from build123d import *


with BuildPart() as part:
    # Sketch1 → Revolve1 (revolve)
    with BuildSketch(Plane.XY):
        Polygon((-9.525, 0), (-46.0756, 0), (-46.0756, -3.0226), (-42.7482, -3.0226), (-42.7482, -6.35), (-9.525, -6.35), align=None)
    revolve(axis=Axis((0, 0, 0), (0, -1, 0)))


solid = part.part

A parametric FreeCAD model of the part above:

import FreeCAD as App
import Part
import Sketcher
from FreeCAD import Vector
Q = App.Units.Quantity

doc = App.newDocument("Part")
body = doc.addObject("PartDesign::Body", "Body")

# Sketch on XY plane
sketch1 = body.newObject("Sketcher::SketchObject", "Sketch")
sketch1.AttachmentSupport = (doc.getObject("XY_Plane"), [""])
sketch1.MapMode = "FlatFace"
sketch1.addGeometry(Part.LineSegment(Vector(-9.525, 0, 0), Vector(-46.0756, 0, 0)), False)
sketch1.addGeometry(Part.LineSegment(Vector(-46.0756, 0, 0), Vector(-46.0756, -3.0226, 0)), False)
sketch1.addGeometry(Part.LineSegment(Vector(-46.0756, -3.0226, 0), Vector(-42.7482, -3.0226, 0)), False)
sketch1.addGeometry(Part.LineSegment(Vector(-42.7482, -3.0226, 0), Vector(-42.7482, -6.35, 0)), False)
sketch1.addGeometry(Part.LineSegment(Vector(-42.7482, -6.35, 0), Vector(-9.525, -6.35, 0)), False)
sketch1.addGeometry(Part.LineSegment(Vector(-9.525, -6.35, 0), Vector(-9.525, 0, 0)), False)
sketch1.addConstraint(Sketcher.Constraint("Coincident", 0, 2, 1, 1))
sketch1.addConstraint(Sketcher.Constraint("Coincident", 1, 2, 2, 1))
sketch1.addConstraint(Sketcher.Constraint("Coincident", 2, 2, 3, 1))
sketch1.addConstraint(Sketcher.Constraint("Coincident", 3, 2, 4, 1))
sketch1.addConstraint(Sketcher.Constraint("Coincident", 4, 2, 5, 1))
sketch1.addConstraint(Sketcher.Constraint("Coincident", 5, 2, 0, 1))
sketch1.addConstraint(Sketcher.Constraint("Horizontal", 0))
sketch1.addConstraint(Sketcher.Constraint("Vertical", 1))
sketch1.addConstraint(Sketcher.Constraint("Horizontal", 2))
sketch1.addConstraint(Sketcher.Constraint("Vertical", 3))
sketch1.addConstraint(Sketcher.Constraint("Horizontal", 4))
sketch1.addConstraint(Sketcher.Constraint("Vertical", 5))
sketch1.addConstraint(Sketcher.Constraint("PointOnObject", 0, 2, -1))
sketch1.addConstraint(Sketcher.Constraint("Equal", 2, 3))
sketch1.addConstraint(Sketcher.Constraint("DistanceY", 5, 1, 5, 2, Q("0.25 in")))
sketch1.addConstraint(Sketcher.Constraint("DistanceX", 0, 2, 0, 1, Q("1.439 in")))
sketch1.addConstraint(Sketcher.Constraint("DistanceX", 2, 1, 2, 2, Q("0.131 in")))
sketch1.addConstraint(Sketcher.Constraint("DistanceX", 0, 2, -1, 1, Q("1.814 in")))
revolution = body.newObject("PartDesign::Revolution", "Revolution")
revolution.Profile = sketch1
revolution.ReferenceAxis = (sketch1, ["V_Axis"])
revolution.Angle = 360

doc.recompute()
